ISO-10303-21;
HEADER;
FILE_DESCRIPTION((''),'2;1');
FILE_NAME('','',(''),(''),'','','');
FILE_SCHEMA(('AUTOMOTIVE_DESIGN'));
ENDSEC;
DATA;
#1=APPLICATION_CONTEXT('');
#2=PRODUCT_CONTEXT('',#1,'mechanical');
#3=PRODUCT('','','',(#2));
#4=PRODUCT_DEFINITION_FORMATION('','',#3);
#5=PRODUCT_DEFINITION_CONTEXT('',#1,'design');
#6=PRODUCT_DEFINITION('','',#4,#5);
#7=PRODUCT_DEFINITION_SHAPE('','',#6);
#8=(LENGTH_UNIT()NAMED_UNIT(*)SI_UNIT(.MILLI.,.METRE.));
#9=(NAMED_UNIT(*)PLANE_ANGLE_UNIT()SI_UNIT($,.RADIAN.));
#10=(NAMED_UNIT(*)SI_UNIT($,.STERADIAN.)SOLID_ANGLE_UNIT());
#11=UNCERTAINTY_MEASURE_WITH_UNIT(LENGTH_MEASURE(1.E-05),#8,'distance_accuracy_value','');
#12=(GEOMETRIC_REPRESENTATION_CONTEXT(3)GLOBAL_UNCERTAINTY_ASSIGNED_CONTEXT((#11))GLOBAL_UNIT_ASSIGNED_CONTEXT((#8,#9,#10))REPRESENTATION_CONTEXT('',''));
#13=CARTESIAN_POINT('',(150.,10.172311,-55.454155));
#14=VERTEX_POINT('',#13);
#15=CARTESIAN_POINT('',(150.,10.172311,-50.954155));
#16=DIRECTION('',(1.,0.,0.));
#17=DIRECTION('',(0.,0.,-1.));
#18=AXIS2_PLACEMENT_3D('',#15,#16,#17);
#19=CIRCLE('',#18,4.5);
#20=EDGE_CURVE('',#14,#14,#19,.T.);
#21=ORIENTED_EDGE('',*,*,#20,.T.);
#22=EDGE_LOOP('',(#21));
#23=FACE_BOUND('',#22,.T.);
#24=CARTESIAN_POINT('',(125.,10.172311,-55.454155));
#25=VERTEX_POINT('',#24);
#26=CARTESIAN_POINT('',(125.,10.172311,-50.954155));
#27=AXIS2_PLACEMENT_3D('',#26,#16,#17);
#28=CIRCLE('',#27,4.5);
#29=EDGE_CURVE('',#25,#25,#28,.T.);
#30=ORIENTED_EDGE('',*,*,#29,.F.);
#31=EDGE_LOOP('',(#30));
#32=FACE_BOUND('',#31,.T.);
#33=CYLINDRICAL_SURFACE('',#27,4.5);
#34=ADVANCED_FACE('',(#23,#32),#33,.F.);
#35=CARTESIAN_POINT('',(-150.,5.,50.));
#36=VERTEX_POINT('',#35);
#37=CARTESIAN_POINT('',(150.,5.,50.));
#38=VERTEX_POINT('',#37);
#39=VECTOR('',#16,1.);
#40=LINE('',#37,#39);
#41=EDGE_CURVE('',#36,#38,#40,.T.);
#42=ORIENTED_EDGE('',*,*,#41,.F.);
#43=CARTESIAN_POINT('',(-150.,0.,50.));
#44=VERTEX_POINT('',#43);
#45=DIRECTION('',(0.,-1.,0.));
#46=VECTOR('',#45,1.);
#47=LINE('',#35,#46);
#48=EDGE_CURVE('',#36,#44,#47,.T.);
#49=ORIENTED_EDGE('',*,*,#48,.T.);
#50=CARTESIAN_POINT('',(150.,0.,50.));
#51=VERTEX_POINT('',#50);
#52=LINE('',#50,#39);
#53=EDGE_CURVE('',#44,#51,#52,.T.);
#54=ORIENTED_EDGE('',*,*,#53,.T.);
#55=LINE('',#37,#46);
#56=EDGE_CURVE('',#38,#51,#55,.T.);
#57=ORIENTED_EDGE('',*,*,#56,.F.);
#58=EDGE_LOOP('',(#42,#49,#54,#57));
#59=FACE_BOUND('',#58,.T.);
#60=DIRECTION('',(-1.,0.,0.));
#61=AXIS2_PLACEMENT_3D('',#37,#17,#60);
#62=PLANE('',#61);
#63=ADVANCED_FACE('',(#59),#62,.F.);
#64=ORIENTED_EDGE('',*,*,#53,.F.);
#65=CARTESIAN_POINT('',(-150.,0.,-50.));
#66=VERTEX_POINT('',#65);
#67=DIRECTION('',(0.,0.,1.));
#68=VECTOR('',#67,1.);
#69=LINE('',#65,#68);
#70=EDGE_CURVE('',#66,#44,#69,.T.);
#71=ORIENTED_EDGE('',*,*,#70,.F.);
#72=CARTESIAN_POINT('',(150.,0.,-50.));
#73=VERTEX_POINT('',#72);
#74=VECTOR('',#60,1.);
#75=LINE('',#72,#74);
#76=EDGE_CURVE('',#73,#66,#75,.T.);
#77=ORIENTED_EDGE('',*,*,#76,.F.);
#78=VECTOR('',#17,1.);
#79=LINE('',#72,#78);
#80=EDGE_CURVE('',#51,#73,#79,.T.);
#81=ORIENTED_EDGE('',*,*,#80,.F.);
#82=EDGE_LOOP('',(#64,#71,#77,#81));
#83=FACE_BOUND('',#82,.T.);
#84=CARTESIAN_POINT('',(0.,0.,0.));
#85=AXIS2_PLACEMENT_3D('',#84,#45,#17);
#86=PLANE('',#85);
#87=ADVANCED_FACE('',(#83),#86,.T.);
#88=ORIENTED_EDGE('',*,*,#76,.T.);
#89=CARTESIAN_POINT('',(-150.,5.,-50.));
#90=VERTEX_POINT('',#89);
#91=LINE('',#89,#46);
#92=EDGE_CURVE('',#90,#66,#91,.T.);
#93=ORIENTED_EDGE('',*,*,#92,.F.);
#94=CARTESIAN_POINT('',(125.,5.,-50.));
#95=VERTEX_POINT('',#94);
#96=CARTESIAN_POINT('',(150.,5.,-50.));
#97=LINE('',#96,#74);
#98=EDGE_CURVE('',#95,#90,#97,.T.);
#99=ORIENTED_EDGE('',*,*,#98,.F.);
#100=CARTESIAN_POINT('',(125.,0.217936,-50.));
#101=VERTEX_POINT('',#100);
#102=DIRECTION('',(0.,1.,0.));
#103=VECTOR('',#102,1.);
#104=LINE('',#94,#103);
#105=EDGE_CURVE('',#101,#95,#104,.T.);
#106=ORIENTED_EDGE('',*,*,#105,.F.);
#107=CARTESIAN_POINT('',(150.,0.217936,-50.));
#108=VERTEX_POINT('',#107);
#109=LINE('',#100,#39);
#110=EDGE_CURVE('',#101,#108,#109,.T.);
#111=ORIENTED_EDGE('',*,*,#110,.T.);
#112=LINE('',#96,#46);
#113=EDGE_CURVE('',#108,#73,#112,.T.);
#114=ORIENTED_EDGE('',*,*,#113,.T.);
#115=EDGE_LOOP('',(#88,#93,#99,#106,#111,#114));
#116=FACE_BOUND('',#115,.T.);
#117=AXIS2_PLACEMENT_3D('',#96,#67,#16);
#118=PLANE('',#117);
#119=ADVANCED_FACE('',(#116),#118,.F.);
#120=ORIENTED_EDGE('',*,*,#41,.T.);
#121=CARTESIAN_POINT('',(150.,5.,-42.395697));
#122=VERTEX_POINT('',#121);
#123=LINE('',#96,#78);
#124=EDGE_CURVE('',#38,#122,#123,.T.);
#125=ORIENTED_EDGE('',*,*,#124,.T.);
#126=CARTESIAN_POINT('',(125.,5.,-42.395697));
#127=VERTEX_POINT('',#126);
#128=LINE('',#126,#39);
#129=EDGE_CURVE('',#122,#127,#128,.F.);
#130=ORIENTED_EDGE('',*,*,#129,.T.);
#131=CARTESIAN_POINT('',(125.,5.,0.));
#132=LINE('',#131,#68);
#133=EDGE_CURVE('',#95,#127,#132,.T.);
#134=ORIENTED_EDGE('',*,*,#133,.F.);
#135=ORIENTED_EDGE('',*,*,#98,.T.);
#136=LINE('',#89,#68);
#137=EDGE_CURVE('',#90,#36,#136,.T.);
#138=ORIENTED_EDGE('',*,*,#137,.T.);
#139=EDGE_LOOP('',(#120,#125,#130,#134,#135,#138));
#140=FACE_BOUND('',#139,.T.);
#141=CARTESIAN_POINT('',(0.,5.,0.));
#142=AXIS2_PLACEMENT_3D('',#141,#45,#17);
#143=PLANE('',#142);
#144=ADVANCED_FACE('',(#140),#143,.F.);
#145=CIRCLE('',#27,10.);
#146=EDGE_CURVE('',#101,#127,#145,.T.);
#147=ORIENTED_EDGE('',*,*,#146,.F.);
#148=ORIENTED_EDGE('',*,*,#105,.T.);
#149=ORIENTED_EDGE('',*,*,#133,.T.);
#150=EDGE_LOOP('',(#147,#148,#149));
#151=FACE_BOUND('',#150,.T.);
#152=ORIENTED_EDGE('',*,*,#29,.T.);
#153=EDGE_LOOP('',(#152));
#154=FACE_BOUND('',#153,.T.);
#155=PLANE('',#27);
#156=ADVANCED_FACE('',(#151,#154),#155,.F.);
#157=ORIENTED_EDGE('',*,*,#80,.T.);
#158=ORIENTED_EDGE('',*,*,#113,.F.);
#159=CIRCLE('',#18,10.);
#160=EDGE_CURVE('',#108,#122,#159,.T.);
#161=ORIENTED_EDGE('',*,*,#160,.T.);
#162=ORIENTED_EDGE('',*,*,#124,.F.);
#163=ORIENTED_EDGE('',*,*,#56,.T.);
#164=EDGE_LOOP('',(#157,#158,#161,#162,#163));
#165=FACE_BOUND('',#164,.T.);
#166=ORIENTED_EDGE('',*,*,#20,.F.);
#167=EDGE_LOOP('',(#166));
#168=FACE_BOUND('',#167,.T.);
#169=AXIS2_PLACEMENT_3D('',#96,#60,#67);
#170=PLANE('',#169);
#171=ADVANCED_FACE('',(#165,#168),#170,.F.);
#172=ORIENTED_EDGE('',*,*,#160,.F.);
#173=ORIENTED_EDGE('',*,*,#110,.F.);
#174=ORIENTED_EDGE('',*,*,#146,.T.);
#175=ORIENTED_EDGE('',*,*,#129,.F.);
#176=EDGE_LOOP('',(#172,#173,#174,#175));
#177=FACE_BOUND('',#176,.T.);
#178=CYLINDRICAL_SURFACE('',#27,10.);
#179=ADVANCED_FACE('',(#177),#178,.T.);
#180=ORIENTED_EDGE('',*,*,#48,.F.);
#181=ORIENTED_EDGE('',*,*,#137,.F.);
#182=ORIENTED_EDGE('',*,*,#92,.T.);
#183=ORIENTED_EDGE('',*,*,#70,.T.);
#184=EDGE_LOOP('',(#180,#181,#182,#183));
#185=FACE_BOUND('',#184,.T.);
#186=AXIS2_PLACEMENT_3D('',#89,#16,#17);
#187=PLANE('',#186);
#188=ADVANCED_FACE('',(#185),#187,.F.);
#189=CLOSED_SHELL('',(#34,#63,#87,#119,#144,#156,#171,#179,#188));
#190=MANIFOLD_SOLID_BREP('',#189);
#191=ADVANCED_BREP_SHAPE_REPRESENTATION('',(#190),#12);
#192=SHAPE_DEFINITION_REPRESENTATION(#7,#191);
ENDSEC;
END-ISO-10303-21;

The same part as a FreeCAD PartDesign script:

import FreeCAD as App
import Part
import Sketcher

doc = App.newDocument("Part")
body = doc.addObject("PartDesign::Body", "Body")

sketch1 = body.newObject("Sketcher::SketchObject", "Sketch")
sketch1.AttachmentSupport = (doc.getObject("XZ_Plane"), [""])
sketch1.MapMode = "FlatFace"
sketch1.addGeometry([
    Part.LineSegment(App.Vector(-150, -50, 0), App.Vector(-150, 50, 0)),
    Part.LineSegment(App.Vector(-150, 50, 0), App.Vector(150, 50, 0)),
    Part.LineSegment(App.Vector(150, 50, 0), App.Vector(150, -50, 0)),
    Part.LineSegment(App.Vector(150, -50, 0), App.Vector(-150, -50, 0)),
], False)
sketch1.addConstraint([
    Sketcher.Constraint("Coincident", 0, 2, 1, 1),
    Sketcher.Constraint("Coincident", 1, 2, 2, 1),
    Sketcher.Constraint("Coincident", 2, 2, 3, 1),
    Sketcher.Constraint("Coincident", 3, 2, 0, 1),
    Sketcher.Constraint("Vertical", 0),
    Sketcher.Constraint("Horizontal", 1),
    Sketcher.Constraint("Vertical", 2),
    Sketcher.Constraint("Horizontal", 3),
    Sketcher.Constraint("Symmetric", 0, 2, 2, 2, -1, 1),
    Sketcher.Constraint("DistanceX", 1, 1, 1, 2, 300.0),
    Sketcher.Constraint("DistanceY", 0, 1, 0, 2, 100.0),
])
pad1 = body.newObject("PartDesign::Pad", "Pad")
pad1.Profile = sketch1
pad1.Length = 5
pad1.Reversed = True

sketch2 = body.newObject("Sketcher::SketchObject", "Sketch001")
sketch2.AttachmentSupport = (doc.getObject("YZ_Plane"), [""])
sketch2.MapMode = "FlatFace"
sketch2.AttachmentOffset = App.Placement(App.Vector(0, 0, 150), App.Rotation())
sketch2.addGeometry(Part.Circle(App.Vector(10, -51, 0), App.Vector(0, 0, 1), 10), False)
sketch2.addConstraint([
    Sketcher.Constraint("Diameter", 0, 20.0),
    Sketcher.Constraint("DistanceX", -1, 1, 0, 3, 10.172311),
    Sketcher.Constraint("DistanceY", 0, 3, -1, 1, 50.954155),
])
pad2 = body.newObject("PartDesign::Pad", "Pad001")
pad2.Profile = sketch2
pad2.Length = 25
pad2.Reversed = True

sketch3 = body.newObject("Sketcher::SketchObject", "Sketch002")
sketch3.AttachmentSupport = (doc.getObject("YZ_Plane"), [""])
sketch3.MapMode = "FlatFace"
sketch3.AttachmentOffset = App.Placement(App.Vector(0, 0, 150), App.Rotation())
sketch3.addGeometry(Part.Circle(App.Vector(10.2, -51, 0), App.Vector(0, 0, 1), 4.5), False)
sketch3.addConstraint([
    Sketcher.Constraint("Diameter", 0, 9.0),
    Sketcher.Constraint("DistanceX", -1, 1, 0, 3, 10.172311),
    Sketcher.Constraint("DistanceY", 0, 3, -1, 1, 50.954155),
])
pocket1 = body.newObject("PartDesign::Pocket", "Pocket")
pocket1.Profile = sketch3
pocket1.Length = 25

doc.recompute()
